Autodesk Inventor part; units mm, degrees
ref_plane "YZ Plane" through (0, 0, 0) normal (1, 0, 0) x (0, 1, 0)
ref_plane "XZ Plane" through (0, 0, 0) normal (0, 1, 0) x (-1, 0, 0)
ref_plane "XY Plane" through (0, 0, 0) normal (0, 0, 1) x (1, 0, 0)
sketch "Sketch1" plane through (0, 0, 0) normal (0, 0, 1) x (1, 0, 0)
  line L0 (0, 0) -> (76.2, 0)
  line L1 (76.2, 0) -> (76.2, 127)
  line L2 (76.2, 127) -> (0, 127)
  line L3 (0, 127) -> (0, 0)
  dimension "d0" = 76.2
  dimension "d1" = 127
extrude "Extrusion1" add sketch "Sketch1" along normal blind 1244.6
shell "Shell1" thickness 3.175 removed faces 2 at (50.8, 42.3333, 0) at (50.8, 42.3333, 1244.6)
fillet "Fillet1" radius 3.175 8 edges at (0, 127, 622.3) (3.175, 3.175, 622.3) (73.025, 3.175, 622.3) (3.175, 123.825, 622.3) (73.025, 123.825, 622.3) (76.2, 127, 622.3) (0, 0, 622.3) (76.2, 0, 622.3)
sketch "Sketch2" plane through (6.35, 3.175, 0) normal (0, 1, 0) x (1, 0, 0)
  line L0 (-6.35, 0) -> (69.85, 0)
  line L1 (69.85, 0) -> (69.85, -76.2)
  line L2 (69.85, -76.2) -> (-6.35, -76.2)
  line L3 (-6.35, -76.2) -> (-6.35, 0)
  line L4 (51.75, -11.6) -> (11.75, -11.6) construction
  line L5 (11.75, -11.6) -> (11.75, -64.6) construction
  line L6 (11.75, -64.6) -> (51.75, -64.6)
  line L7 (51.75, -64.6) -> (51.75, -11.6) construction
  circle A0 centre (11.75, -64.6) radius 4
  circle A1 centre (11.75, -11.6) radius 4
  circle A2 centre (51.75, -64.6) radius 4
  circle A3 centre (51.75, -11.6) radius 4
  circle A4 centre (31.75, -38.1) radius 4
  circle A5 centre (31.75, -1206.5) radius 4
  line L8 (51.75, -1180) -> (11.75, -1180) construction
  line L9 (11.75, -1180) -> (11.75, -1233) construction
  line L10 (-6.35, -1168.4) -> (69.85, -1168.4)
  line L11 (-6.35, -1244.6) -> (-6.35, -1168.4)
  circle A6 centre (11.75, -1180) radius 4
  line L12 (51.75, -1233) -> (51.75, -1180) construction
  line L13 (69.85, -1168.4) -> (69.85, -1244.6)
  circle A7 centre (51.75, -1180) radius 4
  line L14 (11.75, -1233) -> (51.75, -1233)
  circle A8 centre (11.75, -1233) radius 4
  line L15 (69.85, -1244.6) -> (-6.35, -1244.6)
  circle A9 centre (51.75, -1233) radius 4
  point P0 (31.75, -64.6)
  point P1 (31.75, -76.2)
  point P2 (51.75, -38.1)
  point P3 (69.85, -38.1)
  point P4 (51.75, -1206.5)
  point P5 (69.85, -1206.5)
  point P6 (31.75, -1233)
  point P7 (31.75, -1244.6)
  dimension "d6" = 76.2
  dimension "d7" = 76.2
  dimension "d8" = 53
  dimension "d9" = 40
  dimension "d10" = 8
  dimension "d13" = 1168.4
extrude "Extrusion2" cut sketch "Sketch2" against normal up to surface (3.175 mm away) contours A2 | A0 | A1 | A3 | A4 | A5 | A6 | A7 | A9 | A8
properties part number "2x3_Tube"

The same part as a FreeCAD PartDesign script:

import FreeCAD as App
import Part
import Sketcher
from FreeCAD import Vector
Q = App.Units.Quantity


def edges_at(feature, points):
    """Names of the edges that pass closest to the given points."""
    edges = feature.Shape.Edges
    near = lambda p: min(range(len(edges)), key=lambda i: edges[i].distToShape(Part.Vertex(*p))[0])
    return sorted({f"Edge{near(p) + 1}" for p in points})


def faces_at(feature, points):
    """Names of the faces that lie closest to the given points."""
    faces = feature.Shape.Faces
    near = lambda p: min(range(len(faces)), key=lambda i: faces[i].distToShape(Part.Vertex(*p))[0])
    return sorted({f"Face{near(p) + 1}" for p in points})


def add_polygon(sketch, points):
    """Adds a closed chain of lines whose ends are joined by coincident constraints."""
    first, n = sketch.GeometryCount, len(points)
    for a, b in zip(points, points[1:] + points[:1]):
        sketch.addGeometry(Part.LineSegment(App.Vector(*a, 0), App.Vector(*b, 0)), False)
    for i in range(n):
        sketch.addConstraint(Sketcher.Constraint("Coincident", first + i, 2, first + (i + 1) % n, 1))

doc = App.newDocument("Part")
body = doc.addObject("PartDesign::Body", "Body")

# Sketch on XY plane
sketch1 = body.newObject("Sketcher::SketchObject", "Sketch")
sketch1.AttachmentSupport = (doc.getObject("XY_Plane"), [""])
sketch1.MapMode = "FlatFace"
add_polygon(sketch1, [(0, 127), (0, 0), (76, 0), (76, 127)])  # lines 0-3
sketch1.addConstraint([
    Sketcher.Constraint("Vertical", 0),
    Sketcher.Constraint("Horizontal", 1),
    Sketcher.Constraint("Vertical", 2),
    Sketcher.Constraint("Horizontal", 3),
    Sketcher.Constraint("Coincident", 0, 2, -1, 1),
    Sketcher.Constraint("DistanceX", 1, 1, 1, 2, Q("3 in")),
    Sketcher.Constraint("DistanceY", 0, 2, 0, 1, Q("5 in")),
])
pad1 = body.newObject("PartDesign::Pad", "Pad")
pad1.Profile = sketch1
pad1.Length = Q("49 in")
doc.recompute()

thickness = body.newObject("PartDesign::Thickness", "Thickness")
thickness.Base = (pad1, faces_at(pad1, [(50.8, 42.333, 0), (50.8, 42.333, 1244.6)]))
thickness.Value = Q("0.125 in")
thickness.Reversed = True
thickness.Join = "Intersection"
doc.recompute()

fillet = body.newObject("PartDesign::Fillet", "Fillet")
fillet.Base = (thickness, edges_at(thickness, [
    (0, 127, 622.3),
    (3.175, 3.175, 622.3),
    (73.025, 3.175, 622.3),
    (3.175, 123.825, 622.3),
    (73.025, 123.825, 622.3),
    (76.2, 127, 622.3),
    (0, 0, 622.3),
    (76.2, 0, 622.3),
]))
fillet.Radius = Q("0.125 in")

# Sketch on XZ plane
sketch2 = body.newObject("Sketcher::SketchObject", "Sketch001")
sketch2.AttachmentSupport = (doc.getObject("XZ_Plane"), [""])
sketch2.MapMode = "FlatFace"
sketch2.AttachmentOffset = App.Placement(Vector(0, 0, -0.125 * 25.4), App.Rotation())
sketch2.addGeometry([
    Part.Circle(Vector(58.1, 64.6, 0), Vector(0, 0, 1), 4),  # 0
    Part.Circle(Vector(18.1, 64.6, 0), Vector(0, 0, 1), 4),  # 1
    Part.Circle(Vector(18.1, 11.6, 0), Vector(0, 0, 1), 4),  # 2
    Part.Circle(Vector(58.1, 11.6, 0), Vector(0, 0, 1), 4),  # 3
    Part.Circle(Vector(38.1, 38.1, 0), Vector(0, 0, 1), 4),  # 4
    Part.Circle(Vector(38.1, 1206.5, 0), Vector(0, 0, 1), 4),  # 5
    Part.Circle(Vector(18.1, 1180, 0), Vector(0, 0, 1), 4),  # 6
    Part.Circle(Vector(58.1, 1180, 0), Vector(0, 0, 1), 4),  # 7
    Part.Circle(Vector(58.1, 1233, 0), Vector(0, 0, 1), 4),  # 8
    Part.Circle(Vector(18.1, 1233, 0), Vector(0, 0, 1), 4),  # 9
], False)
sketch2.addConstraint([
    Sketcher.Constraint("Equal", 0, 1),
    Sketcher.Constraint("Equal", 1, 2),
    Sketcher.Constraint("Equal", 2, 3),
    Sketcher.Constraint("Equal", 3, 4),
    Sketcher.Constraint("Equal", 4, 5),
    Sketcher.Constraint("Equal", 5, 6),
    Sketcher.Constraint("Equal", 6, 7),
    Sketcher.Constraint("Equal", 7, 8),
    Sketcher.Constraint("Equal", 8, 9),
    Sketcher.Constraint("Horizontal", 0, 3, 1, 3),
    Sketcher.Constraint("Horizontal", 2, 3, 3, 3),
    Sketcher.Constraint("Horizontal", 6, 3, 7, 3),
    Sketcher.Constraint("Horizontal", 8, 3, 9, 3),
    Sketcher.Constraint("Vertical", 1, 3, 2, 3),
    Sketcher.Constraint("Vertical", 0, 3, 3, 3),
    Sketcher.Constraint("Vertical", 4, 3, 5, 3),
    Sketcher.Constraint("Vertical", 2, 3, 6, 3),
    Sketcher.Constraint("Vertical", 3, 3, 7, 3),
    Sketcher.Constraint("Vertical", 7, 3, 8, 3),
    Sketcher.Constraint("Vertical", 6, 3, 9, 3),
    Sketcher.Constraint("DistanceY", 4, 3, 5, 3, Q("46 in")),
    Sketcher.Constraint("DistanceY", 2, 3, 6, 3, Q("46 in")),
    Sketcher.Constraint("DistanceY", 0, 3, 8, 3, Q("46 in")),
    Sketcher.Constraint("Diameter", 0, 8.0),
    Sketcher.Constraint("DistanceX", -1, 1, 4, 3, Q("1.5 in")),
    Sketcher.Constraint("DistanceY", -1, 1, 4, 3, Q("1.5 in")),
    Sketcher.Constraint("DistanceX", 1, 3, 0, 3, Q("1.5748 in")),
    Sketcher.Constraint("DistanceY", 2, 3, 1, 3, 53.0),
    Sketcher.Constraint("DistanceX", -1, 1, 0, 3, Q("2.2874 in")),
    Sketcher.Constraint("DistanceY", -1, 1, 0, 3, Q("2.5433 in")),
])
pocket1 = body.newObject("PartDesign::Pocket", "Pocket")
pocket1.Profile = sketch2
pocket1.Length = Q("0.125 in")
pocket1.Reversed = True

doc.recompute()
